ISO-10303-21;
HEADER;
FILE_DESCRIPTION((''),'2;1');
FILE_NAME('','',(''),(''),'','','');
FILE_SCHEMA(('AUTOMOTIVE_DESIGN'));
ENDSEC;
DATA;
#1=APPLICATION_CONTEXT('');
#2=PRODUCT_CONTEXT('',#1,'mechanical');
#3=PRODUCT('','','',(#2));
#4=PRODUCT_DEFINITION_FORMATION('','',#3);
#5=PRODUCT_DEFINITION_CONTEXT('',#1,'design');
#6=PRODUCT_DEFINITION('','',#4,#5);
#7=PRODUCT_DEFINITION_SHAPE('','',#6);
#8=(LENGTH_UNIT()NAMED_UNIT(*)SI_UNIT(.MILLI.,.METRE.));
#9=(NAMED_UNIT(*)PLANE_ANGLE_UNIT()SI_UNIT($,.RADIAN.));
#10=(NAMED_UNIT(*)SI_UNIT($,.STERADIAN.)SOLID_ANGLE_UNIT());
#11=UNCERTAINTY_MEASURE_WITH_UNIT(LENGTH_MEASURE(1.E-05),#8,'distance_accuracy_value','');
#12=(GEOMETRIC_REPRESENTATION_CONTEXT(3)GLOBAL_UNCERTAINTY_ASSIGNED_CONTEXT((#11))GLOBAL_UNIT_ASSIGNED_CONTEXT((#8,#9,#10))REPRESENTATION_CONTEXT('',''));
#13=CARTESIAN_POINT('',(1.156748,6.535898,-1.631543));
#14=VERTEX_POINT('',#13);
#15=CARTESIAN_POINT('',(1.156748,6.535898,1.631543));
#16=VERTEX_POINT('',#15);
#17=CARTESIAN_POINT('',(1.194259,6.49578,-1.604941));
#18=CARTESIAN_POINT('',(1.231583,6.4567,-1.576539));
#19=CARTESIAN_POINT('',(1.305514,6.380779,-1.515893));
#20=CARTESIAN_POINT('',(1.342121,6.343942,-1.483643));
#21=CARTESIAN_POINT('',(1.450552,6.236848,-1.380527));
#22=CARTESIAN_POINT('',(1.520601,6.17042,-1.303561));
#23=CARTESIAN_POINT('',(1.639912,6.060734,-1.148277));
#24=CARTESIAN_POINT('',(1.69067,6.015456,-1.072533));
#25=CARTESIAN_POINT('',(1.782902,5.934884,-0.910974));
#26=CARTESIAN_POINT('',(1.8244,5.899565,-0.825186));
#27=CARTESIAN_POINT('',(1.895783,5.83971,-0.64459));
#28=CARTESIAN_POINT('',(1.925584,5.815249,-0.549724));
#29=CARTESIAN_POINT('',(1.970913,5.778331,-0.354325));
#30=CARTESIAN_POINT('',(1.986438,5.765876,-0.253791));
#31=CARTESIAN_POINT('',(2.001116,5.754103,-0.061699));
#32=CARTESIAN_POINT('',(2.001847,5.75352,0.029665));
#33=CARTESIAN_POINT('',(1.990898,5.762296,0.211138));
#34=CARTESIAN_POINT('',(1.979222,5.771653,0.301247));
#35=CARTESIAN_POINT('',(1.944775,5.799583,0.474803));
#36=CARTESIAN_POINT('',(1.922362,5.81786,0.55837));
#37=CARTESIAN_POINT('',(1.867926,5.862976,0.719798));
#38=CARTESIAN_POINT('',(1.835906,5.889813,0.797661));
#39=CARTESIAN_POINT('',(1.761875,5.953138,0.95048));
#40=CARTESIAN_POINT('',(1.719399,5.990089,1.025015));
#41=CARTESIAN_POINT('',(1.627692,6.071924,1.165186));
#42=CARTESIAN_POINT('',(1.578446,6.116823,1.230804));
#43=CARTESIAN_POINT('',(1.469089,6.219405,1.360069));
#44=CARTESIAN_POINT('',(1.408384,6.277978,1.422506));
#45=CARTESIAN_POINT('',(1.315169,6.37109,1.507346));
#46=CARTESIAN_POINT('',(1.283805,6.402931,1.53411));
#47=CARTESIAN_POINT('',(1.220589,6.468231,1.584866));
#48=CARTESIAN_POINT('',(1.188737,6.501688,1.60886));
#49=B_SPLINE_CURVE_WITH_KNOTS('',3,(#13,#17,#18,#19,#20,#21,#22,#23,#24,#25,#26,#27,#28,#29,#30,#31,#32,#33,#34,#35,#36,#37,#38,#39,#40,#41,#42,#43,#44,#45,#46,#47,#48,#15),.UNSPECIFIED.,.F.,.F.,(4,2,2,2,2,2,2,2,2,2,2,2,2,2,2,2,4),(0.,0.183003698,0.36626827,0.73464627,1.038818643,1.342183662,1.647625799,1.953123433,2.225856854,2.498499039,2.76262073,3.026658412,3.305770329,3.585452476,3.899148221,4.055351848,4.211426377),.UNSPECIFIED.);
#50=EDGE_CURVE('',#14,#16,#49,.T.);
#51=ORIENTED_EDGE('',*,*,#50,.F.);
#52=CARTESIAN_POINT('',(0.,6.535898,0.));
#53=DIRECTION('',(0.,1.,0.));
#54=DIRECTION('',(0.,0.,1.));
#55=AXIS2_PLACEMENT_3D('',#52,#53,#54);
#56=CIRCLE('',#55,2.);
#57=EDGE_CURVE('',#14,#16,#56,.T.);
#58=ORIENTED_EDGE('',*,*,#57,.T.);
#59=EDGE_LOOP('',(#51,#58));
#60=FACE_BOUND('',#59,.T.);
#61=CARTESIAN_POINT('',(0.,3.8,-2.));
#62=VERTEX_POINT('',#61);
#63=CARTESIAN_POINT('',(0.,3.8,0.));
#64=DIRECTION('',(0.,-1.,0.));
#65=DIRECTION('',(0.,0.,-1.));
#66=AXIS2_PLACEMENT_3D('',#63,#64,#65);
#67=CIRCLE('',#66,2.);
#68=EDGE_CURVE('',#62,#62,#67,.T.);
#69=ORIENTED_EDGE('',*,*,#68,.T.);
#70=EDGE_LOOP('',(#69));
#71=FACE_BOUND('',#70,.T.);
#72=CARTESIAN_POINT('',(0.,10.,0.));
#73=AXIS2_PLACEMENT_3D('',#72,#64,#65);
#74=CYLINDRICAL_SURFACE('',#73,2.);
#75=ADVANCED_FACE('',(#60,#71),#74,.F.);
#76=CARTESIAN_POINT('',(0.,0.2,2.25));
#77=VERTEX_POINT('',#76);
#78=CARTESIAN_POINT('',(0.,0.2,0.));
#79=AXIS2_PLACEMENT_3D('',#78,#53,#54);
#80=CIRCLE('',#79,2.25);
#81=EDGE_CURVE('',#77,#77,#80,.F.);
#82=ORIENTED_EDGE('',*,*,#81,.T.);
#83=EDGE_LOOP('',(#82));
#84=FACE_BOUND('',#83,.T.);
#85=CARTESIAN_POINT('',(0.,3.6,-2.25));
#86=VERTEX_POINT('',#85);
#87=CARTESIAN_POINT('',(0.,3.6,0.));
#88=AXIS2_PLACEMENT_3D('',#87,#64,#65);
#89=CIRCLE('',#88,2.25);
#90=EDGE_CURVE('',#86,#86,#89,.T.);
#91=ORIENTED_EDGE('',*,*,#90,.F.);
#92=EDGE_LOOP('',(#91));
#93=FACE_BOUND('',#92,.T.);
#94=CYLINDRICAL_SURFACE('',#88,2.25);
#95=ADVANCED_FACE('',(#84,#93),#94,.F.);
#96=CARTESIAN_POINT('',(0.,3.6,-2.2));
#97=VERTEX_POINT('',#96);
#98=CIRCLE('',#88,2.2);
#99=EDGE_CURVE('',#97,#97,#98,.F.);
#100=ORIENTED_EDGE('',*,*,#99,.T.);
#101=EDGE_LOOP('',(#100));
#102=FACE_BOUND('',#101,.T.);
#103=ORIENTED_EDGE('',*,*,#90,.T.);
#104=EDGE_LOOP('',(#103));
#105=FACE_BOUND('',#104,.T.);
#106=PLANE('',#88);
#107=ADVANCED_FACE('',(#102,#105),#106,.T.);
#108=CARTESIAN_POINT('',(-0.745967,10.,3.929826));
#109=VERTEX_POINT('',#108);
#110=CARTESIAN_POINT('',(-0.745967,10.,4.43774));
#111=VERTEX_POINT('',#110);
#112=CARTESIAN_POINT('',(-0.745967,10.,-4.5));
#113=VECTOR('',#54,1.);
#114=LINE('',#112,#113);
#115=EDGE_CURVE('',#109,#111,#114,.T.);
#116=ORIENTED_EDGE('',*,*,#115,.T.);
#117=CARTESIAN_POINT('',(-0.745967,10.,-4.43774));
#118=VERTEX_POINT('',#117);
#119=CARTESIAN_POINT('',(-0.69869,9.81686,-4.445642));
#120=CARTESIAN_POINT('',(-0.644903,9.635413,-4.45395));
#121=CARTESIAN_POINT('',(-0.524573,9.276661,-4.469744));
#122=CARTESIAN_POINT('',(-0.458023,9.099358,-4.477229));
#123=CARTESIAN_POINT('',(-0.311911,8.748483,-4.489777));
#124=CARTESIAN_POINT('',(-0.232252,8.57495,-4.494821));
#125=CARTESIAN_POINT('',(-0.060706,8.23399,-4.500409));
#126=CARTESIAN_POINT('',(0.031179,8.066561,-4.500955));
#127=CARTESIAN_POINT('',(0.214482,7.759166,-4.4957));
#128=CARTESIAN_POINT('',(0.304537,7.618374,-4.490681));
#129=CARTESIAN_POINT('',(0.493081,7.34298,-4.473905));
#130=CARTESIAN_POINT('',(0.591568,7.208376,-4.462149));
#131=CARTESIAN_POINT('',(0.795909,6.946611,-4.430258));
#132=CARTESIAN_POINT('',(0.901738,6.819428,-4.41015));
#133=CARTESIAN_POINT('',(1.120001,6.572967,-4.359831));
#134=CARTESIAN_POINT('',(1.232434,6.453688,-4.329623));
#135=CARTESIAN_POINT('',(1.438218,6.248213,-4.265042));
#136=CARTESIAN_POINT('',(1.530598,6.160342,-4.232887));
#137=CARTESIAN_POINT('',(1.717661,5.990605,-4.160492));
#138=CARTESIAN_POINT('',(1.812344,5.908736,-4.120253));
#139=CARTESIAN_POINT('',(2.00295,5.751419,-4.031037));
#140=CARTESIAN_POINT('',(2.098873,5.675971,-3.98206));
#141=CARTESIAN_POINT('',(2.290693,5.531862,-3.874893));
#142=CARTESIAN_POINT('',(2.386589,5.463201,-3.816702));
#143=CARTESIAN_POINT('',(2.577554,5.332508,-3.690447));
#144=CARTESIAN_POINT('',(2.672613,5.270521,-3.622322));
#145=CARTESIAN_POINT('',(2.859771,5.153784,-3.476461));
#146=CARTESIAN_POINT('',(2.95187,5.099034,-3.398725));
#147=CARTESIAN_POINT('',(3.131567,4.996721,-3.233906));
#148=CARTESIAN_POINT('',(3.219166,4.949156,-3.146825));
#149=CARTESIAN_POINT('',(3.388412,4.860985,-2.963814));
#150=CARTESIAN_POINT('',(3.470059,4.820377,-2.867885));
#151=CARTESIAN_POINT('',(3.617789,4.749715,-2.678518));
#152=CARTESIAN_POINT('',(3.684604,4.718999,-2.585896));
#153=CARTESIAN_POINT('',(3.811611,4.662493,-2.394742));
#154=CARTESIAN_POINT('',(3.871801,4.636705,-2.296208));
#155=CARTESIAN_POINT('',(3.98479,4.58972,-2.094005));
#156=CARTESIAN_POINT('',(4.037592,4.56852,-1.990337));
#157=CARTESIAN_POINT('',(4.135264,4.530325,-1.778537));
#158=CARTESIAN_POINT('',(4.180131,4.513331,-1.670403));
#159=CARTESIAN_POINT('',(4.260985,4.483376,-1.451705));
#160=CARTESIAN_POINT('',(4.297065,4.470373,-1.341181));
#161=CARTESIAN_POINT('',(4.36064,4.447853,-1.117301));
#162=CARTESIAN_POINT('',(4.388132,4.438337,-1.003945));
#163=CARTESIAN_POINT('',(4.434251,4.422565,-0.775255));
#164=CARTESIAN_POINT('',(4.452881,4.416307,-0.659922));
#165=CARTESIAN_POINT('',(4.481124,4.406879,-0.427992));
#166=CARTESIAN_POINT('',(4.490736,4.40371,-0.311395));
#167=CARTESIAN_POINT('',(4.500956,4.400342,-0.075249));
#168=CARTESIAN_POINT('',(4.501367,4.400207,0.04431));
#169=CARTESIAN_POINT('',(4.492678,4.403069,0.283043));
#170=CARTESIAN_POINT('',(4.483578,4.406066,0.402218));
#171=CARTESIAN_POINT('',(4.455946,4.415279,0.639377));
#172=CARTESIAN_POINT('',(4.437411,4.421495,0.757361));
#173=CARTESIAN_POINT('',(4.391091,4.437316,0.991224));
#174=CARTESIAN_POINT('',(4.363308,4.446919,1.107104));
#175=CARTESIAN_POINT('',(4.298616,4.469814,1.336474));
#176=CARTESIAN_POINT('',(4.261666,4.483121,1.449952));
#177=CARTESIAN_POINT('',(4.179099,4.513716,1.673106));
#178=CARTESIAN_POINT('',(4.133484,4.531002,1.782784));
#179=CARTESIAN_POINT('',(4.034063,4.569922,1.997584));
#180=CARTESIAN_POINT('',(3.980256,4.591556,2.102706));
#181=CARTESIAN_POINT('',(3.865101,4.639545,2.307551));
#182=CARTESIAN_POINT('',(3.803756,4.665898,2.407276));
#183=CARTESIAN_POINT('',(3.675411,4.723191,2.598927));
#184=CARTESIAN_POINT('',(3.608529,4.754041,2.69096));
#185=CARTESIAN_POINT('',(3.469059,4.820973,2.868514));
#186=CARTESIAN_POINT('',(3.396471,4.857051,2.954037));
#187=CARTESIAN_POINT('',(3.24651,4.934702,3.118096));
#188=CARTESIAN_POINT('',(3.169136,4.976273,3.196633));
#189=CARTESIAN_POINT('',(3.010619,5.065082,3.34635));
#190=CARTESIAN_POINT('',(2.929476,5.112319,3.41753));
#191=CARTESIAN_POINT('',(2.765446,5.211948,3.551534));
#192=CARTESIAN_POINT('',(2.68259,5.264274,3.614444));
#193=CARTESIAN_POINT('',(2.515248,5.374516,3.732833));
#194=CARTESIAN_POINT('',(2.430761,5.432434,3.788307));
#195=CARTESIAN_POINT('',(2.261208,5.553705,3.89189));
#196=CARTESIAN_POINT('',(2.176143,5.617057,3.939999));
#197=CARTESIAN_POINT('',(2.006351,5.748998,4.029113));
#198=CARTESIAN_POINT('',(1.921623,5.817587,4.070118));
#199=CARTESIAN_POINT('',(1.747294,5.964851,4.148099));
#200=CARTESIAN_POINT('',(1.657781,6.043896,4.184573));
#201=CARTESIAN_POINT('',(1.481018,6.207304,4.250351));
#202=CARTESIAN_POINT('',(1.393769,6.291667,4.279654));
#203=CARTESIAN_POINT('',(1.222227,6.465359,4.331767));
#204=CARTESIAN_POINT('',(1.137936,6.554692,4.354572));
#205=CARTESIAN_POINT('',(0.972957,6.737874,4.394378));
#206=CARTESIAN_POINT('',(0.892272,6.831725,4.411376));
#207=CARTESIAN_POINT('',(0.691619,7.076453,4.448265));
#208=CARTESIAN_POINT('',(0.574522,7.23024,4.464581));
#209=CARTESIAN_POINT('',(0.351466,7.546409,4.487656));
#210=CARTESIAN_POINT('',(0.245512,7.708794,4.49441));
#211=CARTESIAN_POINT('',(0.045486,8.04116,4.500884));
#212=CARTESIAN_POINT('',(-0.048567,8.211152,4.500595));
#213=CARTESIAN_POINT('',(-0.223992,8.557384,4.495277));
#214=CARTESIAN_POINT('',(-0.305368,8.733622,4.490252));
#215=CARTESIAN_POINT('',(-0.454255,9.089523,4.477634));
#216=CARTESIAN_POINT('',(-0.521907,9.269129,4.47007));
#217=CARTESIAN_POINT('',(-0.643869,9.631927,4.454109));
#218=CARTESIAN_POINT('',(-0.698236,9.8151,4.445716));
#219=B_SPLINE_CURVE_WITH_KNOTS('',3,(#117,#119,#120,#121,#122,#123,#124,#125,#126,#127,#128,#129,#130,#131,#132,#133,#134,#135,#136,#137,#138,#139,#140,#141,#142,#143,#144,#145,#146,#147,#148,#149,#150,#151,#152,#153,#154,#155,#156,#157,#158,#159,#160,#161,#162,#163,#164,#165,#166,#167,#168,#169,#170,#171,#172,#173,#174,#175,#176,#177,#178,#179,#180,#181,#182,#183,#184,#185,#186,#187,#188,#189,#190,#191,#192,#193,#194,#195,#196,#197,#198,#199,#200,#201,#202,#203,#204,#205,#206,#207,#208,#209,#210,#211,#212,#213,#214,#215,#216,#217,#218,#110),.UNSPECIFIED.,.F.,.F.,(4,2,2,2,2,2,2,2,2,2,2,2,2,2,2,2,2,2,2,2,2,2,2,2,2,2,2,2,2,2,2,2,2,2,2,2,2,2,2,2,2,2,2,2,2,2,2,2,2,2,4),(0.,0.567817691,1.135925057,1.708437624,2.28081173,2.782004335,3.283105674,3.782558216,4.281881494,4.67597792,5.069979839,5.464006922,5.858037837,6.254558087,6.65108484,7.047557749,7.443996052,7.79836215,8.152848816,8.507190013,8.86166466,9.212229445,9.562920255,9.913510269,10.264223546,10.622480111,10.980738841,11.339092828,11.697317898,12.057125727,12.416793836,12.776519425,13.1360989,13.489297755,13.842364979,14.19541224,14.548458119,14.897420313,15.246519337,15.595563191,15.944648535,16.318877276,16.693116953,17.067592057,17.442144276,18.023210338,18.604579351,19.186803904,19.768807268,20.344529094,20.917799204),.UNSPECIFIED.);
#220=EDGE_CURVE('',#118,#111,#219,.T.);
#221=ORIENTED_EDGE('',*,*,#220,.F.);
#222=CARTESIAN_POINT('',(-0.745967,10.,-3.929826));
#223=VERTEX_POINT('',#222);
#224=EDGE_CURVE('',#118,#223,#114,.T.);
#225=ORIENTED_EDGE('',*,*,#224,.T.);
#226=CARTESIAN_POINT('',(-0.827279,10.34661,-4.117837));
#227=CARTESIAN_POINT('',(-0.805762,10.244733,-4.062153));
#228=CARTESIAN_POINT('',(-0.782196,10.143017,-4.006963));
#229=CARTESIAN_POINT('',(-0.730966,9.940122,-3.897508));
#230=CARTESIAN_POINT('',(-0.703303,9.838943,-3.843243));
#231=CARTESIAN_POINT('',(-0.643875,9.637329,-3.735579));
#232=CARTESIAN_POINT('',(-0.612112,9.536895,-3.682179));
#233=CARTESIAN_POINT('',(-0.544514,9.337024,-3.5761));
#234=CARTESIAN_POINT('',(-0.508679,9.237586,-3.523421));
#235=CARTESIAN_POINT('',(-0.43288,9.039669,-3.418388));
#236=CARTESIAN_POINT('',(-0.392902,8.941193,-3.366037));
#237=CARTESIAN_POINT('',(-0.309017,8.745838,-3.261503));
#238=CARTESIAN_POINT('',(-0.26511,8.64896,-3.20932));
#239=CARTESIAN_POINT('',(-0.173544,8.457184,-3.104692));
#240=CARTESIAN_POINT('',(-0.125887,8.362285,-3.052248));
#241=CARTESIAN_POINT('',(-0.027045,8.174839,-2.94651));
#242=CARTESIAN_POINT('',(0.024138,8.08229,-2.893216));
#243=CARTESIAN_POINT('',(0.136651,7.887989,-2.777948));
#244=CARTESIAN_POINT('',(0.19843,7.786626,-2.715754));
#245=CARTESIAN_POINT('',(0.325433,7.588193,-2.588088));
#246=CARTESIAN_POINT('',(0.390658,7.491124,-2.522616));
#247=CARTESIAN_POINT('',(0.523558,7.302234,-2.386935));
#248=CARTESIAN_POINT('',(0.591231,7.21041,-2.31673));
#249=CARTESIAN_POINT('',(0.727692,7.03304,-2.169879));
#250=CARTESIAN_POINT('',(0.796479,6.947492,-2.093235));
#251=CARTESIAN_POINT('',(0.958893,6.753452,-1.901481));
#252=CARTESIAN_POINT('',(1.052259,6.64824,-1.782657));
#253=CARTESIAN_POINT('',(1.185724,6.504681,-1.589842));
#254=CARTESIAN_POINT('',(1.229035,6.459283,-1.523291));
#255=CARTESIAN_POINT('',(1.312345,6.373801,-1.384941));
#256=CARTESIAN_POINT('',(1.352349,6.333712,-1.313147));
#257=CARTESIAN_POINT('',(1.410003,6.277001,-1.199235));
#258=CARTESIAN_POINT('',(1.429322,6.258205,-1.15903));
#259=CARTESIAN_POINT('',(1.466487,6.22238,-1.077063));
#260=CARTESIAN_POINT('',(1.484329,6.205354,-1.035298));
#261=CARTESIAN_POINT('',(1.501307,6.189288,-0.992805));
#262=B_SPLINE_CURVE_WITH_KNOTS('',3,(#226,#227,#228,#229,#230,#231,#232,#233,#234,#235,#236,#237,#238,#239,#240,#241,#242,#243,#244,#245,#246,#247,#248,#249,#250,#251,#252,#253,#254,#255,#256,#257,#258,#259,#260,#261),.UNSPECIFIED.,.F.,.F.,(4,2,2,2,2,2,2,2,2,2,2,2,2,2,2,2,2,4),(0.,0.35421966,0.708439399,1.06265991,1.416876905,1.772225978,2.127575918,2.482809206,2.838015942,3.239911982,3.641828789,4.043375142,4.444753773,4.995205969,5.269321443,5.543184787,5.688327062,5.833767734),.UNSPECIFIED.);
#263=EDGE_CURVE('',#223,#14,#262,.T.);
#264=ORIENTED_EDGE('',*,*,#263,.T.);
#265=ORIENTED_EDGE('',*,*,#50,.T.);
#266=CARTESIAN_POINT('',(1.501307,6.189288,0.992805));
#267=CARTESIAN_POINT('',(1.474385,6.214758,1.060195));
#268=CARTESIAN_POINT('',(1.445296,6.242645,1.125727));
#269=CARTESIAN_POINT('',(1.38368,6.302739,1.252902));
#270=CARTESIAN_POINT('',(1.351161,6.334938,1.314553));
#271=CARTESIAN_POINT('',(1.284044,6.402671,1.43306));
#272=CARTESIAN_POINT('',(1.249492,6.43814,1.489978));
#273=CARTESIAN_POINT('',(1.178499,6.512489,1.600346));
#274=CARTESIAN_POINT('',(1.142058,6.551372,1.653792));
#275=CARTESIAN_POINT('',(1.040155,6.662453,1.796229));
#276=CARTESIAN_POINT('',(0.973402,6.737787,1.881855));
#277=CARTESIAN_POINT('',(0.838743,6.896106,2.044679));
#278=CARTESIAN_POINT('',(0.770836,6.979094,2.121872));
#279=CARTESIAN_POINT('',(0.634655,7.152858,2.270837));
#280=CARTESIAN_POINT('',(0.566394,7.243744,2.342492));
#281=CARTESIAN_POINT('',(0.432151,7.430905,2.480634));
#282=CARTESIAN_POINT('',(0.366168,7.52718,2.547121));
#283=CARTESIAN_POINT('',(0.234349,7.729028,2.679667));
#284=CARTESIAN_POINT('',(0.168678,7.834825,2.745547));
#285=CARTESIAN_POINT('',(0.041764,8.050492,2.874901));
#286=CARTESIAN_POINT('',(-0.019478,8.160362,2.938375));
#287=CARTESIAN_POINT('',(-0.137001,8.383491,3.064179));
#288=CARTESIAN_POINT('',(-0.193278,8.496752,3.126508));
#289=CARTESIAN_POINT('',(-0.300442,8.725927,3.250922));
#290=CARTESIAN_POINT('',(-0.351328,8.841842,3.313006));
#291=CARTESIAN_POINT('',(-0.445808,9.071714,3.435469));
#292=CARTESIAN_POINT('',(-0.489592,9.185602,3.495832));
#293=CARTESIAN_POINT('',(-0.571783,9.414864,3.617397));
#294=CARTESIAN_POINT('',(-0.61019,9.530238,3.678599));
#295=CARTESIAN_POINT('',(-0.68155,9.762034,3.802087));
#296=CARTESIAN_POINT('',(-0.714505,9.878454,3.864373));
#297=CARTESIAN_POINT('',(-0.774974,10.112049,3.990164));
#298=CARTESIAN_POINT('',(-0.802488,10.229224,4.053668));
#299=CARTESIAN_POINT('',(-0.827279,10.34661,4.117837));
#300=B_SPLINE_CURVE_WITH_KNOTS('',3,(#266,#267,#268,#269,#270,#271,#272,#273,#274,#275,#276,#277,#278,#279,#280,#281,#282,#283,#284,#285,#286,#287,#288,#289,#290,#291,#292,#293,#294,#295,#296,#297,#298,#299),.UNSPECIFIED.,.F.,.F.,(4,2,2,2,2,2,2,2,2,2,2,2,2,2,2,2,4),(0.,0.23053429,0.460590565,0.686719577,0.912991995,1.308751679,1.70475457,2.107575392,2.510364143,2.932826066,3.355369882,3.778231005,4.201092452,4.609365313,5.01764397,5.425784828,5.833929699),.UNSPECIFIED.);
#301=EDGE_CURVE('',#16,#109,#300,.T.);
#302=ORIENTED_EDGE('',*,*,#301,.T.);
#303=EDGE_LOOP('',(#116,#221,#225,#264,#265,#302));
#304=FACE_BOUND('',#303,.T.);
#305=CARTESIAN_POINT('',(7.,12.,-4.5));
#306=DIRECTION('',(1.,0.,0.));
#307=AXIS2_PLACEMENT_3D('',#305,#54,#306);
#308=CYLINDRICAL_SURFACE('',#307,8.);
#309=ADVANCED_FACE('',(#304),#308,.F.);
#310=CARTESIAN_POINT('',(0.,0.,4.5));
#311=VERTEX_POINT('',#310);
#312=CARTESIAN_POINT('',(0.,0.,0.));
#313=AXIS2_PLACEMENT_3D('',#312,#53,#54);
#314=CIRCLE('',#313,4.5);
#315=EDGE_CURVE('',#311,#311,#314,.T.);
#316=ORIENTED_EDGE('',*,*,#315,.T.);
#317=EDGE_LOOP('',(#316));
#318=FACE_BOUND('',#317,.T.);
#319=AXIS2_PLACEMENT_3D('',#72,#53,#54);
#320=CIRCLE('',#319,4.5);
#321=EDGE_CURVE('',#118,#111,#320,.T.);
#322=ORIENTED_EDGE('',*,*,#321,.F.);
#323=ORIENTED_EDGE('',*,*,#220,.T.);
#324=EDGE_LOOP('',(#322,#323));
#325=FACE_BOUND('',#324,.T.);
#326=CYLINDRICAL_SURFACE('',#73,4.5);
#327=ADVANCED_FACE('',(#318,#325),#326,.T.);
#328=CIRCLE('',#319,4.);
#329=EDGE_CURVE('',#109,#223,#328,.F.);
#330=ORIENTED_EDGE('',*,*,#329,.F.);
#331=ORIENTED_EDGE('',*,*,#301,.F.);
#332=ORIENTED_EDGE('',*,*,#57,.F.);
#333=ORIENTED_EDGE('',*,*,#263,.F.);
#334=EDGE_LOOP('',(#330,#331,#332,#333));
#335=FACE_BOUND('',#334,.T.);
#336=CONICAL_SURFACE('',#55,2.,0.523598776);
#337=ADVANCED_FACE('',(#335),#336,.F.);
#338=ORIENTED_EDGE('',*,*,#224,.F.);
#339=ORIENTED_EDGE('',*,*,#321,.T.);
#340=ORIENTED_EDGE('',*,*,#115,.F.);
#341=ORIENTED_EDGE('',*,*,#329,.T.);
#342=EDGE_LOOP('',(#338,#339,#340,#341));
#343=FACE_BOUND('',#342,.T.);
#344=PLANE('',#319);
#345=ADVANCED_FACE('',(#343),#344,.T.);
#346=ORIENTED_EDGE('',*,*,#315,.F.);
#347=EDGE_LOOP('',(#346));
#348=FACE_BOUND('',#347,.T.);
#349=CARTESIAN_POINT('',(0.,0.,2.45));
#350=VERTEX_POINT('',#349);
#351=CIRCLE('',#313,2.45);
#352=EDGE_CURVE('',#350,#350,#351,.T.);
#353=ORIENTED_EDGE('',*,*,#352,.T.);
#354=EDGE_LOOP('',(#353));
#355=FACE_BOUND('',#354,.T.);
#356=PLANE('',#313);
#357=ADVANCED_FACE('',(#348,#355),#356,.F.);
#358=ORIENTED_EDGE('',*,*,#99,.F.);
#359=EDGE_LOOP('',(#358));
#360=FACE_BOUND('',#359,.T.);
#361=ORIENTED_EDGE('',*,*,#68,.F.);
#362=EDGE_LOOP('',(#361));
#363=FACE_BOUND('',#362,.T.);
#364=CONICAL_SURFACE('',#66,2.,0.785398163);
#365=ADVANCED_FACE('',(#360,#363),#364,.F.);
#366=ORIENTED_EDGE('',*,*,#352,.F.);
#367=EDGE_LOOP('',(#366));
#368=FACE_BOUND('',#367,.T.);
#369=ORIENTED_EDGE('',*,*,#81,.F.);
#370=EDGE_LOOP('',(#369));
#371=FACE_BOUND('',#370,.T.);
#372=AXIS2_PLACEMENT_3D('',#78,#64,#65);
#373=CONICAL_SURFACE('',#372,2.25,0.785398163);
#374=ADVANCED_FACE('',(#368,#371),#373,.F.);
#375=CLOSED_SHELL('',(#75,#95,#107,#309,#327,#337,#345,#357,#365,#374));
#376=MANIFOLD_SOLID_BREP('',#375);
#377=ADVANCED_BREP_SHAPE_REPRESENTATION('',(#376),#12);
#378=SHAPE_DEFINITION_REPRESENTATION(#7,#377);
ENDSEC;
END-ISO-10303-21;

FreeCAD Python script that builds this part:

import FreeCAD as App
import Part
import Sketcher

V = App.Vector


def edges_at(feature, points):
    """Names of the edges that pass closest to the given points."""
    edges = feature.Shape.Edges
    near = lambda p: min(range(len(edges)), key=lambda i: edges[i].distToShape(Part.Vertex(*p))[0])
    return sorted({f"Edge{near(p) + 1}" for p in points})

doc = App.newDocument("Part")
body = doc.addObject("PartDesign::Body", "Body")

# Sketch on XZ plane
sketch1 = doc.addObject("Sketcher::SketchObject", "Sketch")
body.addObject(sketch1)
sketch1.AttachmentSupport = (doc.XZ_Plane, [""])
sketch1.MapMode = "FlatFace"
sketch1.addGeometry(Part.Circle(V(0, 0, 0), V(0, 0, 1), 4.5), False)
sketch1.addGeometry(Part.Circle(V(0, 0, 0), V(0, 0, 1), 2), False)
sketch1.addConstraint(Sketcher.Constraint("Coincident", 0, 3, -1, 1))
sketch1.addConstraint(Sketcher.Constraint("Coincident", 1, 3, -1, 1))
sketch1.addConstraint(Sketcher.Constraint("Diameter", 0, 9.0))
sketch1.addConstraint(Sketcher.Constraint("Diameter", 1, 4.0))
pad1 = doc.addObject("PartDesign::Pad", "Pad")
body.addObject(pad1)
pad1.Profile = sketch1
pad1.Length = 10
pad1.Reversed = True
doc.recompute()

chamfer = doc.addObject("PartDesign::Chamfer", "Chamfer")
body.addObject(chamfer)
chamfer.Base = (pad1, edges_at(pad1, [(0, 10, -2)]))
chamfer.ChamferType = "Two distances"
chamfer.Size = 2
chamfer.Size2 = 3.464102
chamfer.FlipDirection = True

# Sketch on XZ plane
sketch2 = doc.addObject("Sketcher::SketchObject", "Sketch001")
body.addObject(sketch2)
sketch2.AttachmentSupport = (doc.XZ_Plane, [""])
sketch2.MapMode = "FlatFace"
sketch2.addGeometry(Part.Circle(V(0, 0, 0), V(0, 0, 1), 2.2), False)
sketch2.addConstraint(Sketcher.Constraint("Coincident", 0, 3, -1, 1))
sketch2.addConstraint(Sketcher.Constraint("Diameter", 0, 4.5))
pocket1 = doc.addObject("PartDesign::Pocket", "Pocket")
body.addObject(pocket1)
pocket1.Profile = sketch2
pocket1.Length = 3.6

# Sketch on XY plane
sketch3 = doc.addObject("Sketcher::SketchObject", "Sketch002")
body.addObject(sketch3)
sketch3.AttachmentSupport = (doc.XY_Plane, [""])
sketch3.MapMode = "FlatFace"
sketch3.addGeometry(Part.Circle(V(7, 12, 0), V(0, 0, 1), 8), False)
sketch3.addConstraint(Sketcher.Constraint("Diameter", 0, 16.0))
sketch3.addConstraint(Sketcher.Constraint("DistanceX", -1, 1, 0, 3, 7.0))
sketch3.addConstraint(Sketcher.Constraint("DistanceY", -1, 1, 0, 3, 12.0))
pocket2 = doc.addObject("PartDesign::Pocket", "Pocket001")
body.addObject(pocket2)
pocket2.Profile = sketch3
pocket2.Type = "ThroughAll"
pocket2.Midplane = True
doc.recompute()

chamfer2 = doc.addObject("PartDesign::Chamfer", "Chamfer001")
body.addObject(chamfer2)
chamfer2.Base = (pocket2, edges_at(pocket2, [(0, 3.6, -2), (0, 0, 2.25)]))
chamfer2.Size = 0.2

doc.recompute()
